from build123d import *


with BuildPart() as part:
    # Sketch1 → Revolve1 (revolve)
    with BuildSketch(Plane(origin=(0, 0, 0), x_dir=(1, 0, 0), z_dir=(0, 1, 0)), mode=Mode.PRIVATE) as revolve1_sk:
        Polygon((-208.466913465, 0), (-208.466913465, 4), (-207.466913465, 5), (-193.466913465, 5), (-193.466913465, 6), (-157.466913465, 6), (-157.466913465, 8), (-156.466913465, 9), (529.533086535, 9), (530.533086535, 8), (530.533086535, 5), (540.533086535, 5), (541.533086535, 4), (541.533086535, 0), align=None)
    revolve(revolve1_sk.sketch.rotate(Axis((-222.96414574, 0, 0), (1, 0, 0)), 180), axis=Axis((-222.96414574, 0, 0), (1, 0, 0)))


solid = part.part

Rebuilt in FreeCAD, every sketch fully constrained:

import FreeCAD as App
import Part
import Sketcher

V = App.Vector

doc = App.newDocument("Part")
body = doc.addObject("PartDesign::Body", "Body")

# Sketch on XZ plane
sketch1 = body.newObject("Sketcher::SketchObject", "Sketch")
sketch1.AttachmentSupport = (doc.getObject("XZ_Plane"), [""])
sketch1.MapMode = "FlatFace"
sketch1.addGeometry([
    Part.LineSegment(V(-208.5, -4, 0), V(-208.5, 0, 0)),  # 0
    Part.LineSegment(V(-208.5, 0, 0), V(541.5, 0, 0)),  # 1
    Part.LineSegment(V(541.5, 0, 0), V(541.5, -4, 0)),  # 2
    Part.LineSegment(V(541.5, -4, 0), V(540.5, -5, 0)),  # 3
    Part.LineSegment(V(540.5, -5, 0), V(530.5, -5, 0)),  # 4
    Part.LineSegment(V(530.5, -5, 0), V(530.5, -8, 0)),  # 5
    Part.LineSegment(V(530.5, -8, 0), V(529.5, -9, 0)),  # 6
    Part.LineSegment(V(529.5, -9, 0), V(-156.5, -9, 0)),  # 7
    Part.LineSegment(V(-156.5, -9, 0), V(-157.5, -8, 0)),  # 8
    Part.LineSegment(V(-157.5, -8, 0), V(-157.5, -6, 0)),  # 9
    Part.LineSegment(V(-157.5, -6, 0), V(-193.5, -6, 0)),  # 10
    Part.LineSegment(V(-193.5, -6, 0), V(-193.5, -5, 0)),  # 11
    Part.LineSegment(V(-193.5, -5, 0), V(-207.5, -5, 0)),  # 12
    Part.LineSegment(V(-207.5, -5, 0), V(-208.5, -4, 0)),  # 13
], False)
sketch1.addConstraint([
    Sketcher.Constraint("Coincident", 0, 2, 1, 1),
    Sketcher.Constraint("Coincident", 1, 2, 2, 1),
    Sketcher.Constraint("Coincident", 2, 2, 3, 1),
    Sketcher.Constraint("Coincident", 3, 2, 4, 1),
    Sketcher.Constraint("Coincident", 4, 2, 5, 1),
    Sketcher.Constraint("Coincident", 5, 2, 6, 1),
    Sketcher.Constraint("Coincident", 6, 2, 7, 1),
    Sketcher.Constraint("Coincident", 7, 2, 8, 1),
    Sketcher.Constraint("Coincident", 8, 2, 9, 1),
    Sketcher.Constraint("Coincident", 9, 2, 10, 1),
    Sketcher.Constraint("Coincident", 10, 2, 11, 1),
    Sketcher.Constraint("Coincident", 11, 2, 12, 1),
    Sketcher.Constraint("Coincident", 12, 2, 13, 1),
    Sketcher.Constraint("Coincident", 13, 2, 0, 1),
    Sketcher.Constraint("Vertical", 0),
    Sketcher.Constraint("Horizontal", 1),
    Sketcher.Constraint("Vertical", 2),
    Sketcher.Constraint("Horizontal", 4),
    Sketcher.Constraint("Vertical", 5),
    Sketcher.Constraint("Horizontal", 7),
    Sketcher.Constraint("Vertical", 9),
    Sketcher.Constraint("Horizontal", 10),
    Sketcher.Constraint("Vertical", 11),
    Sketcher.Constraint("Horizontal", 12),
    Sketcher.Constraint("PointOnObject", 0, 2, -1),
    Sketcher.Constraint("Parallel", 3, 6),
    Sketcher.Constraint("Perpendicular", 6, 8),
    Sketcher.Constraint("Parallel", 8, 13),
    Sketcher.Constraint("Horizontal", 5, 2, 8, 2),
    Sketcher.Constraint("Horizontal", 4, 2, 11, 2),
    Sketcher.Constraint("Horizontal", 2, 2, 13, 2),
    Sketcher.Constraint("Equal", 3, 6),
    Sketcher.Constraint("Equal", 6, 8),
    Sketcher.Constraint("DistanceX", 1, 1, 1, 2, 750.0),
    Sketcher.Constraint("DistanceX", 4, 2, 4, 1, 10.0),
    Sketcher.Constraint("DistanceX", 7, 2, 7, 1, 686.0),
    Sketcher.Constraint("DistanceX", 10, 2, 10, 1, 36.0),
    Sketcher.Constraint("DistanceX", 12, 2, 12, 1, 14.0),
    Sketcher.Constraint("DistanceY", 0, 1, 0, 2, 4.0),
    Sketcher.Constraint("DistanceY", 5, 2, 5, 1, 3.0),
    Sketcher.Constraint("DistanceY", 9, 1, 9, 2, 2.0),
    Sketcher.Constraint("DistanceX", 0, 2, -1, 1, 208.466913),
])
revolution = body.newObject("PartDesign::Revolution", "Revolution")
revolution.Profile = sketch1
revolution.ReferenceAxis = (sketch1, ["H_Axis"])
revolution.Angle = 360

doc.recompute()
